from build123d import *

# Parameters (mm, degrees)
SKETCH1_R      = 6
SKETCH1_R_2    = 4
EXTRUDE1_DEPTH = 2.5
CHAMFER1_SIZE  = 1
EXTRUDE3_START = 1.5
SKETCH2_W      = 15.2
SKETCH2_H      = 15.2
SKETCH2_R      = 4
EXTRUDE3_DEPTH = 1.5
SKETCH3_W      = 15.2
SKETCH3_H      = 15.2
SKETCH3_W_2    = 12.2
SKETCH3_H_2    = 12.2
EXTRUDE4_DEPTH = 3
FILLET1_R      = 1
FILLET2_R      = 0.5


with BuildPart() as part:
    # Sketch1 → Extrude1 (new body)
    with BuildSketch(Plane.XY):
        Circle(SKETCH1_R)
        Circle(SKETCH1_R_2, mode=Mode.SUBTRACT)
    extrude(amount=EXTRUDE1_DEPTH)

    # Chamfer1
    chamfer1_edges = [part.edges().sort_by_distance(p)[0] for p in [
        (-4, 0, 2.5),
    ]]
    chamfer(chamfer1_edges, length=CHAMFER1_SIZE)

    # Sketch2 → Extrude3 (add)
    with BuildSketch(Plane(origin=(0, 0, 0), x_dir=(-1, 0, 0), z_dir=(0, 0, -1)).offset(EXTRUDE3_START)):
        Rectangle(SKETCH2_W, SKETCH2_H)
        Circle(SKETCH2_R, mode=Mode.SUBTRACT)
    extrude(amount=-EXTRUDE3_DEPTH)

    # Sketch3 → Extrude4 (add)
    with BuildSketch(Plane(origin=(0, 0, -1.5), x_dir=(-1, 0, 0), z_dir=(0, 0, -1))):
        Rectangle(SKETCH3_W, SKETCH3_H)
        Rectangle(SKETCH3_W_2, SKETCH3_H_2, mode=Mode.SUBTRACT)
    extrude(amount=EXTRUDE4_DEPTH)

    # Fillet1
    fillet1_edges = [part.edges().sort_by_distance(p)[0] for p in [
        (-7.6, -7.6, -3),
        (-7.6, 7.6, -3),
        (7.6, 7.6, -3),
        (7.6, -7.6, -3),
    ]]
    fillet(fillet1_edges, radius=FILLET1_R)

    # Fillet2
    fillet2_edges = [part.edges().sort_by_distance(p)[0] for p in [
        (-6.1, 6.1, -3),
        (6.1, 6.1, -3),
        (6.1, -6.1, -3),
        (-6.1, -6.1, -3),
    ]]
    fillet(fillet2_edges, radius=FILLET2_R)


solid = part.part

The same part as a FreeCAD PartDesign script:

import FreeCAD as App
import Part
import Sketcher
from FreeCAD import Vector
Q = App.Units.Quantity


def edges_at(feature, points):
    """Names of the edges that pass closest to the given points."""
    edges = feature.Shape.Edges
    near = lambda p: min(range(len(edges)), key=lambda i: edges[i].distToShape(Part.Vertex(*p))[0])
    return sorted({f"Edge{near(p) + 1}" for p in points})


def add_polygon(sketch, points):
    """Adds a closed chain of lines whose ends are joined by coincident constraints."""
    first, n = sketch.GeometryCount, len(points)
    for a, b in zip(points, points[1:] + points[:1]):
        sketch.addGeometry(Part.LineSegment(App.Vector(*a, 0), App.Vector(*b, 0)), False)
    for i in range(n):
        sketch.addConstraint(Sketcher.Constraint("Coincident", first + i, 2, first + (i + 1) % n, 1))

doc = App.newDocument("Part")
body = doc.addObject("PartDesign::Body", "Body")

sketch1 = body.newObject("Sketcher::SketchObject", "Sketch")
sketch1.AttachmentSupport = (doc.getObject("XY_Plane"), [""])
sketch1.MapMode = "FlatFace"
sketch1.addGeometry([
    Part.Circle(Vector(0, 0, 0), Vector(0, 0, 1), 6),
    Part.Circle(Vector(0, 0, 0), Vector(0, 0, 1), 4),
], False)
sketch1.addConstraint([
    Sketcher.Constraint("Coincident", 0, 3, -1, 1),
    Sketcher.Constraint("Coincident", 1, 3, -1, 1),
    Sketcher.Constraint("Diameter", 0, Q("12 mm")),
    Sketcher.Constraint("Diameter", 1, Q("8 mm")),
])
pad1 = body.newObject("PartDesign::Pad", "Pad")
pad1.Profile = sketch1
pad1.Length = 2.5
doc.recompute()

chamfer = body.newObject("PartDesign::Chamfer", "Chamfer")
chamfer.Base = (pad1, edges_at(pad1, [(-4, 0, 2.5)]))
chamfer.Size = 1

sketch2 = body.newObject("Sketcher::SketchObject", "Sketch001")
sketch2.AttachmentSupport = (doc.getObject("XY_Plane"), [""])
sketch2.MapMode = "FlatFace"
sketch2.AttachmentOffset = App.Placement(Vector(0, 0, -1.5), App.Rotation())
add_polygon(sketch2, [(7.6, 7.6), (7.6, -7.6), (-7.6, -7.6), (-7.6, 7.6)])
sketch2.addGeometry(Part.Circle(Vector(0, 0, 0), Vector(0, 0, 1), 4), False)
sketch2.addConstraint([
    Sketcher.Constraint("Vertical", 0),
    Sketcher.Constraint("Horizontal", 1),
    Sketcher.Constraint("Vertical", 2),
    Sketcher.Constraint("Horizontal", 3),
    Sketcher.Constraint("Coincident", 4, 3, -1, 1),
    Sketcher.Constraint("Symmetric", 0, 2, 2, 2, -1, 1),
    Sketcher.Constraint("Equal", 3, 0),
    Sketcher.Constraint("Diameter", 4, Q("8 mm")),
    Sketcher.Constraint("DistanceX", 1, 2, 1, 1, Q("15.2 mm")),
])
pad2 = body.newObject("PartDesign::Pad", "Pad001")
pad2.Profile = sketch2
pad2.Length = 1.5

sketch3 = body.newObject("Sketcher::SketchObject", "Sketch002")
sketch3.AttachmentSupport = (doc.getObject("XY_Plane"), [""])
sketch3.MapMode = "FlatFace"
sketch3.AttachmentOffset = App.Placement(Vector(0, 0, -1.5), App.Rotation())
add_polygon(sketch3, [(8, 8), (8, -8), (-8, -8), (-8, 8)])
add_polygon(sketch3, [(-6, -6), (6, -6), (6, 6), (-6, 6)])
sketch3.addConstraint([
    Sketcher.Constraint("Vertical", 0),
    Sketcher.Constraint("Horizontal", 1),
    Sketcher.Constraint("Vertical", 2),
    Sketcher.Constraint("Horizontal", 3),
    Sketcher.Constraint("Horizontal", 4),
    Sketcher.Constraint("Vertical", 5),
    Sketcher.Constraint("Horizontal", 6),
    Sketcher.Constraint("Vertical", 7),
    Sketcher.Constraint("Symmetric", 0, 2, 2, 2, -1, 1),
    Sketcher.Constraint("Symmetric", 4, 2, 6, 2, -1, 1),
    Sketcher.Constraint("Equal", 3, 0),
    Sketcher.Constraint("Equal", 6, 5),
    Sketcher.Constraint("DistanceX", 1, 2, 1, 1, Q("15.2 mm")),
    Sketcher.Constraint("DistanceX", 4, 1, 4, 2, Q("12.2 mm")),
])
pad3 = body.newObject("PartDesign::Pad", "Pad002")
pad3.Profile = sketch3
pad3.Length = 3
pad3.Reversed = True
doc.recompute()

fillet = body.newObject("PartDesign::Fillet", "Fillet")
fillet.Base = (pad3, edges_at(pad3, [
    (-7.6, -7.6, -2.25),
    (-7.6, 7.6, -2.25),
    (7.6, 7.6, -2.25),
    (7.6, -7.6, -2.25),
]))
fillet.Radius = 1
doc.recompute()

fillet2 = body.newObject("PartDesign::Fillet", "Fillet001")
fillet2.Base = (fillet, edges_at(fillet, [
    (-6.1, 6.1, -3),
    (6.1, 6.1, -3),
    (6.1, -6.1, -3),
    (-6.1, -6.1, -3),
]))
fillet2.Radius = 0.5

doc.recompute()
